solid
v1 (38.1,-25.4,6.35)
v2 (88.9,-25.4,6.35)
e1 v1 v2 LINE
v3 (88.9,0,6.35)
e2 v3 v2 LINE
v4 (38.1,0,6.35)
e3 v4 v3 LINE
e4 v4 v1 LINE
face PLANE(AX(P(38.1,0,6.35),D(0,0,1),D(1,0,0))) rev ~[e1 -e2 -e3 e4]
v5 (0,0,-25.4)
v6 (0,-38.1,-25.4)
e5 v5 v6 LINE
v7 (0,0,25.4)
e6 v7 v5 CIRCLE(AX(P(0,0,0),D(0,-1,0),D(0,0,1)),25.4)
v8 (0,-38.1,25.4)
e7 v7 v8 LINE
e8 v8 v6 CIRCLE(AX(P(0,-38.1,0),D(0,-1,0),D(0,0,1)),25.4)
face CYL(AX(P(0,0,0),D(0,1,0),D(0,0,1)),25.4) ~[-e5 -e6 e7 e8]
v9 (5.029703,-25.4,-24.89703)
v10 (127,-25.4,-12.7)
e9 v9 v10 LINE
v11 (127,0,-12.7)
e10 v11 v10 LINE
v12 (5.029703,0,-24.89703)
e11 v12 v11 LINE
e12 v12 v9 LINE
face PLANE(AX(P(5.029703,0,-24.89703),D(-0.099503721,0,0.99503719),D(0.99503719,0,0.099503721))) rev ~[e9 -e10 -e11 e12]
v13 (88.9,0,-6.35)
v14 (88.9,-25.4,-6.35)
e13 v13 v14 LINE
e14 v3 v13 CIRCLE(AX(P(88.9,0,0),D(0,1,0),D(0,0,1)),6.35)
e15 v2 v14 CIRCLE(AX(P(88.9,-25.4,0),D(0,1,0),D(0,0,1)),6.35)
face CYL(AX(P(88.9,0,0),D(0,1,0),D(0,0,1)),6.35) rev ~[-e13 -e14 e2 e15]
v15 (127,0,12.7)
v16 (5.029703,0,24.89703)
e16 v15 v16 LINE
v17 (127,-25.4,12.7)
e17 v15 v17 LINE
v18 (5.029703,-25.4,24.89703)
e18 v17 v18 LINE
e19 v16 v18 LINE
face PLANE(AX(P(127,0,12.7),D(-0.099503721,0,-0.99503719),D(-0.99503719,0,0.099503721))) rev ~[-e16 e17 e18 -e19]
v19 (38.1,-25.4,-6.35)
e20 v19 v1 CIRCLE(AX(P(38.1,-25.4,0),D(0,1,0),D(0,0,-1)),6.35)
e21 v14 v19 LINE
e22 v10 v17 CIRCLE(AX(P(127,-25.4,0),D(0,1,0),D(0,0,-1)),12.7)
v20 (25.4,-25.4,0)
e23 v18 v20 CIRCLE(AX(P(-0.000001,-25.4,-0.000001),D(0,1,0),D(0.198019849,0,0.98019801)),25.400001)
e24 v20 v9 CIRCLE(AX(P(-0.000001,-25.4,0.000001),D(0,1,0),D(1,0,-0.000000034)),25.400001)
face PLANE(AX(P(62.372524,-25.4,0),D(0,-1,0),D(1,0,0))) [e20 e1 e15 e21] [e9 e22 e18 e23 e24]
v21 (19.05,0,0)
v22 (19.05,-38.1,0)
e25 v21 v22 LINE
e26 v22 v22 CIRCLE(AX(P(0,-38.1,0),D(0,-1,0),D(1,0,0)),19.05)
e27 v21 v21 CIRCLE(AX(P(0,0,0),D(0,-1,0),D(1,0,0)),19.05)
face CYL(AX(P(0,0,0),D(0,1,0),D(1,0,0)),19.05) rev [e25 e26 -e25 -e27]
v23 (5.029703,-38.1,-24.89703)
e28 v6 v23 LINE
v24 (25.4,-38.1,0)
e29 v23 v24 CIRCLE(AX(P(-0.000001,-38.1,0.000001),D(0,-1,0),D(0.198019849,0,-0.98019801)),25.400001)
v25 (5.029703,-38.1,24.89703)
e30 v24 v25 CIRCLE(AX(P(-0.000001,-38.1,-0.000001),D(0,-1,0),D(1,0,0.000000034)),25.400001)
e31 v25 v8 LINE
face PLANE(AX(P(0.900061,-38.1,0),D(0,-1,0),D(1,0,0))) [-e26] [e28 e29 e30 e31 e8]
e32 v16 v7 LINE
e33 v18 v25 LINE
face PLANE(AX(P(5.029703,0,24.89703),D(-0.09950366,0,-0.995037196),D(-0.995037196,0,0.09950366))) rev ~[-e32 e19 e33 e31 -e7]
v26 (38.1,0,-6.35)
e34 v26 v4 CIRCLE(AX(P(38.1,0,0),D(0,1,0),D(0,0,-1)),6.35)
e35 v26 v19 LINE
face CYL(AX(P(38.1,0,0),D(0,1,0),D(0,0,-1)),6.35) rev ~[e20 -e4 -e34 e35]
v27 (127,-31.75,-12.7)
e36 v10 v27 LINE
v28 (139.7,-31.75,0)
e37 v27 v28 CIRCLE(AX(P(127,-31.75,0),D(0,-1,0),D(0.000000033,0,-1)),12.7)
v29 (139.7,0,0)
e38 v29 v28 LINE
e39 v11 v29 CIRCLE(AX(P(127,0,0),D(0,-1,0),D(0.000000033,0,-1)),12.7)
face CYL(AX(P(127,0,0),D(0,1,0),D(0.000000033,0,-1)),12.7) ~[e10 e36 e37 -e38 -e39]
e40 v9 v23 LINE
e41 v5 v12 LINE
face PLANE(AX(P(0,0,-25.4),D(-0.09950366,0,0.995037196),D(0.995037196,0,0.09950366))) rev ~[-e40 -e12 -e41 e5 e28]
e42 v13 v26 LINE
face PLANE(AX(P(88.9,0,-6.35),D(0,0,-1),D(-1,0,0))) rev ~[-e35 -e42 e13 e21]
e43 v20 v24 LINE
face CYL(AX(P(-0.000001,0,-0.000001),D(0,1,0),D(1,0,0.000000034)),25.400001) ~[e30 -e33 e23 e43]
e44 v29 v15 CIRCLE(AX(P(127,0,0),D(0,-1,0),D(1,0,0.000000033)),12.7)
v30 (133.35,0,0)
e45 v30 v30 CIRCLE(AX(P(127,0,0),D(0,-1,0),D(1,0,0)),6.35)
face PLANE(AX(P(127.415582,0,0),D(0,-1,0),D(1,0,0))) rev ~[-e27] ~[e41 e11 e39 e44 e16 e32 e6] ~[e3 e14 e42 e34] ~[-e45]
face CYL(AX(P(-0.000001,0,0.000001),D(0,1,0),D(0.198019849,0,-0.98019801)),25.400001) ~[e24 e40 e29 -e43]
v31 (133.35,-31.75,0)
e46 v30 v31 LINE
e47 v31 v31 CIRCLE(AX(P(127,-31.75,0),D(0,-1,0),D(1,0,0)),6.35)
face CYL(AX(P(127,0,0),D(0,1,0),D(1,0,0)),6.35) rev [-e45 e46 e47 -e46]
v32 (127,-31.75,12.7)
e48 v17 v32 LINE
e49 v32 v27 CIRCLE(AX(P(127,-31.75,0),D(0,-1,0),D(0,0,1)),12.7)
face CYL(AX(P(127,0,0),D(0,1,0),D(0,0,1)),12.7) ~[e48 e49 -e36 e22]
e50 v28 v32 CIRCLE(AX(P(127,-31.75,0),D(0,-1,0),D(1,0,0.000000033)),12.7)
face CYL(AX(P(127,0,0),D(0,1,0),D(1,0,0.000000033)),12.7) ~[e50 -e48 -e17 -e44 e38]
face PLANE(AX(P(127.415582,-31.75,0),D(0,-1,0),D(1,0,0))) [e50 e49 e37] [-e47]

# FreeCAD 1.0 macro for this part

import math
import FreeCAD as App
import Part
import Sketcher
Q = App.Units.Quantity

doc = App.newDocument("Part")
body = doc.addObject("PartDesign::Body", "Body")

# Sketch on XZ plane
sketch1 = doc.addObject("Sketcher::SketchObject", "Sketch")
body.addObject(sketch1)
sketch1.AttachmentSupport = (doc.XZ_Plane, [""])
sketch1.MapMode = "FlatFace"
sketch1.addGeometry([
    Part.LineSegment(App.Vector(5, 25, 0), App.Vector(0, 25, 0)),  # 0
    Part.ArcOfCircle(Part.Circle(App.Vector(0, 0, 0), App.Vector(0, 0, 1), 25), math.radians(90), math.radians(270)),  # 1
    Part.LineSegment(App.Vector(0, -25, 0), App.Vector(5, -25, 0)),  # 2
    Part.ArcOfCircle(Part.Circle(App.Vector(0, 0, 0), App.Vector(0, 0, 1), 25), math.radians(-79), math.radians(0)),  # 3
    Part.ArcOfCircle(Part.Circle(App.Vector(0, 0, 0), App.Vector(0, 0, 1), 25), math.radians(0), math.radians(79)),  # 4
    Part.Circle(App.Vector(0, 0, 0), App.Vector(0, 0, 1), 19),  # 5
], False)
sketch1.addConstraint([
    Sketcher.Constraint("Coincident", 0, 2, 1, 1),
    Sketcher.Constraint("Coincident", 1, 2, 2, 1),
    Sketcher.Constraint("Coincident", 2, 2, 3, 1),
    Sketcher.Constraint("Tangent", 3, 2, 4, 1),
    Sketcher.Constraint("Coincident", 4, 2, 0, 1),
    Sketcher.Constraint("Coincident", 1, 3, -1, 1),
    Sketcher.Constraint("Coincident", 3, 3, -1, 1),
    Sketcher.Constraint("Coincident", 5, 3, -1, 1),
    Sketcher.Constraint("Equal", 1, 3),
    Sketcher.Constraint("Equal", 3, 4),
    Sketcher.Constraint("PointOnObject", 0, 2, -2),
    Sketcher.Constraint("PointOnObject", 1, 2, -2),
    Sketcher.Constraint("PointOnObject", 3, 2, -1),
    Sketcher.Constraint("Vertical", 2, 2, 4, 2),
    Sketcher.Constraint("Radius", 1, Q("1 in")),
    Sketcher.Constraint("Diameter", 5, Q("1.5 in")),
    Sketcher.Constraint("Distance", 0, 5.054789),
])
pad1 = doc.addObject("PartDesign::Pad", "Pad")
body.addObject(pad1)
pad1.Profile = sketch1
pad1.Length = Q("1.5 in")

# Sketch on XZ plane
sketch2 = doc.addObject("Sketcher::SketchObject", "Sketch001")
body.addObject(sketch2)
sketch2.AttachmentSupport = (doc.XZ_Plane, [""])
sketch2.MapMode = "FlatFace"
sketch2.addGeometry([
    Part.LineSegment(App.Vector(127, 13, 0), App.Vector(5, 25, 0)),  # 0
    Part.ArcOfCircle(Part.Circle(App.Vector(0, 0, 0), App.Vector(0, 0, 1), 25), math.radians(0), math.radians(79)),  # 1
    Part.ArcOfCircle(Part.Circle(App.Vector(0, 0, 0), App.Vector(0, 0, 1), 25), math.radians(-79), math.radians(0)),  # 2
    Part.LineSegment(App.Vector(5, -25, 0), App.Vector(127, -13, 0)),  # 3
    Part.ArcOfCircle(Part.Circle(App.Vector(127, 0, 0), App.Vector(0, 0, 1), 13), math.radians(90), math.radians(270)),  # 4
    Part.LineSegment(App.Vector(89, -6, 0), App.Vector(38, -6, 0)),  # 5
    Part.ArcOfCircle(Part.Circle(App.Vector(38, 0, 0), App.Vector(0, 0, 1), 6), math.radians(90), math.radians(270)),  # 6
    Part.LineSegment(App.Vector(38, 6, 0), App.Vector(89, 6, 0)),  # 7
    Part.ArcOfCircle(Part.Circle(App.Vector(89, 0, 0), App.Vector(0, 0, 1), 6), math.radians(-90), math.radians(90)),  # 8
], False)
sketch2.addConstraint([
    Sketcher.Constraint("Coincident", 0, 2, 1, 2),
    Sketcher.Constraint("Tangent", 1, 1, 2, 2),
    Sketcher.Constraint("Coincident", 2, 1, 3, 1),
    Sketcher.Constraint("Coincident", 3, 2, 4, 2),
    Sketcher.Constraint("Coincident", 4, 1, 0, 1),
    Sketcher.Constraint("Tangent", 5, 2, 6, 2),
    Sketcher.Constraint("Tangent", 6, 1, 7, 1),
    Sketcher.Constraint("Tangent", 7, 2, 8, 2),
    Sketcher.Constraint("Tangent", 8, 1, 5, 1),
    Sketcher.Constraint("Horizontal", 5),
    Sketcher.Constraint("Horizontal", 7),
    Sketcher.Constraint("Coincident", 1, 3, -1, 1),
    Sketcher.Constraint("Equal", 1, 2),
    Sketcher.Constraint("Symmetric", 3, 2, 4, 1, -1),
    Sketcher.Constraint("PointOnObject", 6, 3, -1),
    Sketcher.Constraint("PointOnObject", 1, 1, -1),
    Sketcher.Constraint("Vertical", 0, 2, 2, 1),
    Sketcher.Constraint("Vertical", 4, 3, 3, 2),
    Sketcher.Constraint("Radius", 1, Q("1.0000001 in")),
    Sketcher.Constraint("Radius", 4, Q("0.5 in")),
    Sketcher.Constraint("DistanceX", 5, 2, 5, 1, Q("2 in")),
    Sketcher.Constraint("Radius", 6, Q("0.25 in")),
    Sketcher.Constraint("DistanceX", -1, 1, 4, 3, Q("5 in")),
    Sketcher.Constraint("DistanceX", -1, 1, 6, 3, Q("1.5 in")),
    Sketcher.Constraint("Distance", 0, 122.578631),
])
pad2 = doc.addObject("PartDesign::Pad", "Pad001")
body.addObject(pad2)
pad2.Profile = sketch2
pad2.Length = Q("1 in")

# Sketch on XZ plane
sketch3 = doc.addObject("Sketcher::SketchObject", "Sketch002")
body.addObject(sketch3)
sketch3.AttachmentSupport = (doc.XZ_Plane, [""])
sketch3.MapMode = "FlatFace"
sketch3.addGeometry([
    Part.ArcOfCircle(Part.Circle(App.Vector(127, 0, 0), App.Vector(0, 0, 1), 13), math.radians(0), math.radians(90)),
    Part.ArcOfCircle(Part.Circle(App.Vector(127, 0, 0), App.Vector(0, 0, 1), 13), math.radians(90), math.radians(270)),
    Part.ArcOfCircle(Part.Circle(App.Vector(127, 0, 0), App.Vector(0, 0, 1), 13), math.radians(-90), math.radians(0)),
    Part.Circle(App.Vector(127, 0, 0), App.Vector(0, 0, 1), 6),
], False)
sketch3.addConstraint([
    Sketcher.Constraint("Tangent", 0, 2, 1, 1),
    Sketcher.Constraint("Tangent", 1, 2, 2, 1),
    Sketcher.Constraint("Tangent", 2, 2, 0, 1),
    Sketcher.Constraint("Coincident", 3, 3, 0, 3),
    Sketcher.Constraint("Symmetric", 0, 2, 1, 2, -1),
    Sketcher.Constraint("PointOnObject", 2, 2, -1),
    Sketcher.Constraint("Vertical", 3, 3, 0, 2),
    Sketcher.Constraint("Diameter", 3, Q("0.5 in")),
    Sketcher.Constraint("Radius", 0, Q("0.5 in")),
    Sketcher.Constraint("DistanceX", -1, 1, 0, 3, Q("5 in")),
])
pad3 = doc.addObject("PartDesign::Pad", "Pad002")
body.addObject(pad3)
pad3.Profile = sketch3
pad3.Length = Q("1.25 in")

doc.recompute()
